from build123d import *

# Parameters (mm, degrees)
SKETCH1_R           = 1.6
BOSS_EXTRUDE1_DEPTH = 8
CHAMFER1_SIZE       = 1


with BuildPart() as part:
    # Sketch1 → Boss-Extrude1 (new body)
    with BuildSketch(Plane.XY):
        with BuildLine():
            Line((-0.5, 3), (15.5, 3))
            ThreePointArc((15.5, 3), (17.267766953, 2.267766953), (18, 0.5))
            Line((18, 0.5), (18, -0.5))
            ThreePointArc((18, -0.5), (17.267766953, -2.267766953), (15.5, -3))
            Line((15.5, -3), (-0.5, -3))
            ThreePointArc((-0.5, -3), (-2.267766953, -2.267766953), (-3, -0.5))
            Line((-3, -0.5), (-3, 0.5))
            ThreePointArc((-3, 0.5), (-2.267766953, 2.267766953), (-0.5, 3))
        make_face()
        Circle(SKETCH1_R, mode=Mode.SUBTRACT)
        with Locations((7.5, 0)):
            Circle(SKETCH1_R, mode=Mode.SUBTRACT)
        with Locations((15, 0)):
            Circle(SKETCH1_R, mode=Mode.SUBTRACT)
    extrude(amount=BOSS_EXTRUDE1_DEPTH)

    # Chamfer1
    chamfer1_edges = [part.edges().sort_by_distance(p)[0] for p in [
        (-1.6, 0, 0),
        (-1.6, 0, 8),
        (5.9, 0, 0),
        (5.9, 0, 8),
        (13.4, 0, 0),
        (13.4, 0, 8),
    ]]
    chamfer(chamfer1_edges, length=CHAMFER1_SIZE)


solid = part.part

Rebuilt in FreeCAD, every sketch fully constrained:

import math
import FreeCAD as App
import Part
import Sketcher
Q = App.Units.Quantity


def edges_at(feature, points):
    """Names of the edges that pass closest to the given points."""
    edges = feature.Shape.Edges
    near = lambda p: min(range(len(edges)), key=lambda i: edges[i].distToShape(Part.Vertex(*p))[0])
    return sorted({f"Edge{near(p) + 1}" for p in points})

doc = App.newDocument("Part")
body = doc.addObject("PartDesign::Body", "Body")

sketch1 = body.newObject("Sketcher::SketchObject", "Sketch")
sketch1.AttachmentSupport = (doc.getObject("XY_Plane"), [""])
sketch1.MapMode = "FlatFace"
sketch1.addGeometry([
    Part.LineSegment(App.Vector(15.5, 3, 0), App.Vector(-0.5, 3, 0)),
    Part.ArcOfCircle(Part.Circle(App.Vector(-0.5, 0.5, 0), App.Vector(0, 0, 1), 2.5), math.radians(90), math.radians(180)),
    Part.LineSegment(App.Vector(-3, 0.5, 0), App.Vector(-3, -0.5, 0)),
    Part.ArcOfCircle(Part.Circle(App.Vector(-0.5, -0.5, 0), App.Vector(0, 0, 1), 2.5), math.radians(180), math.radians(270)),
    Part.LineSegment(App.Vector(-0.5, -3, 0), App.Vector(15.5, -3, 0)),
    Part.ArcOfCircle(Part.Circle(App.Vector(15.5, -0.5, 0), App.Vector(0, 0, 1), 2.5), math.radians(-90), math.radians(0)),
    Part.LineSegment(App.Vector(18, -0.5, 0), App.Vector(18, 0.5, 0)),
    Part.ArcOfCircle(Part.Circle(App.Vector(15.5, 0.5, 0), App.Vector(0, 0, 1), 2.5), math.radians(0), math.radians(90)),
    Part.Circle(App.Vector(15, 0, 0), App.Vector(0, 0, 1), 1.6),
    Part.Circle(App.Vector(7.5, 0, 0), App.Vector(0, 0, 1), 1.6),
    Part.Circle(App.Vector(0, 0, 0), App.Vector(0, 0, 1), 1.6),
], False)
sketch1.addConstraint([
    Sketcher.Constraint("Tangent", 0, 2, 1, 1),
    Sketcher.Constraint("Tangent", 1, 2, 2, 1),
    Sketcher.Constraint("Tangent", 2, 2, 3, 1),
    Sketcher.Constraint("Tangent", 3, 2, 4, 1),
    Sketcher.Constraint("Tangent", 4, 2, 5, 1),
    Sketcher.Constraint("Tangent", 5, 2, 6, 1),
    Sketcher.Constraint("Tangent", 6, 2, 7, 1),
    Sketcher.Constraint("Tangent", 7, 2, 0, 1),
    Sketcher.Constraint("Horizontal", 0),
    Sketcher.Constraint("Vertical", 2),
    Sketcher.Constraint("Horizontal", 4),
    Sketcher.Constraint("Vertical", 6),
    Sketcher.Constraint("Coincident", 10, 3, -1, 1),
    Sketcher.Constraint("Equal", 1, 3),
    Sketcher.Constraint("Equal", 3, 5),
    Sketcher.Constraint("Equal", 5, 7),
    Sketcher.Constraint("Equal", 8, 9),
    Sketcher.Constraint("Equal", 9, 10),
    Sketcher.Constraint("PointOnObject", 8, 3, -1),
    Sketcher.Constraint("PointOnObject", 9, 3, -1),
    Sketcher.Constraint("Diameter", 8, Q("3.2 mm")),
    Sketcher.Constraint("Radius", 1, Q("2.5 mm")),
    Sketcher.Constraint("DistanceX", 0, 2, 0, 1, Q("16 mm")),
    Sketcher.Constraint("DistanceY", 2, 2, 2, 1, Q("1 mm")),
    Sketcher.Constraint("DistanceX", -1, 1, 8, 3, Q("15 mm")),
    Sketcher.Constraint("DistanceY", -1, 1, 0, 2, Q("3 mm")),
    Sketcher.Constraint("DistanceX", 1, 2, -1, 1, Q("3 mm")),
    Sketcher.Constraint("DistanceX", 1, 3, 9, 3, Q("8 mm")),
])
pad1 = body.newObject("PartDesign::Pad", "Pad")
pad1.Profile = sketch1
pad1.Length = 8
doc.recompute()

chamfer = body.newObject("PartDesign::Chamfer", "Chamfer")
chamfer.Base = (pad1, edges_at(pad1, [
    (-1.6, 0, 0),
    (-1.6, 0, 8),
    (5.9, 0, 0),
    (5.9, 0, 8),
    (13.4, 0, 0),
    (13.4, 0, 8),
]))
chamfer.Size = 1

doc.recompute()
